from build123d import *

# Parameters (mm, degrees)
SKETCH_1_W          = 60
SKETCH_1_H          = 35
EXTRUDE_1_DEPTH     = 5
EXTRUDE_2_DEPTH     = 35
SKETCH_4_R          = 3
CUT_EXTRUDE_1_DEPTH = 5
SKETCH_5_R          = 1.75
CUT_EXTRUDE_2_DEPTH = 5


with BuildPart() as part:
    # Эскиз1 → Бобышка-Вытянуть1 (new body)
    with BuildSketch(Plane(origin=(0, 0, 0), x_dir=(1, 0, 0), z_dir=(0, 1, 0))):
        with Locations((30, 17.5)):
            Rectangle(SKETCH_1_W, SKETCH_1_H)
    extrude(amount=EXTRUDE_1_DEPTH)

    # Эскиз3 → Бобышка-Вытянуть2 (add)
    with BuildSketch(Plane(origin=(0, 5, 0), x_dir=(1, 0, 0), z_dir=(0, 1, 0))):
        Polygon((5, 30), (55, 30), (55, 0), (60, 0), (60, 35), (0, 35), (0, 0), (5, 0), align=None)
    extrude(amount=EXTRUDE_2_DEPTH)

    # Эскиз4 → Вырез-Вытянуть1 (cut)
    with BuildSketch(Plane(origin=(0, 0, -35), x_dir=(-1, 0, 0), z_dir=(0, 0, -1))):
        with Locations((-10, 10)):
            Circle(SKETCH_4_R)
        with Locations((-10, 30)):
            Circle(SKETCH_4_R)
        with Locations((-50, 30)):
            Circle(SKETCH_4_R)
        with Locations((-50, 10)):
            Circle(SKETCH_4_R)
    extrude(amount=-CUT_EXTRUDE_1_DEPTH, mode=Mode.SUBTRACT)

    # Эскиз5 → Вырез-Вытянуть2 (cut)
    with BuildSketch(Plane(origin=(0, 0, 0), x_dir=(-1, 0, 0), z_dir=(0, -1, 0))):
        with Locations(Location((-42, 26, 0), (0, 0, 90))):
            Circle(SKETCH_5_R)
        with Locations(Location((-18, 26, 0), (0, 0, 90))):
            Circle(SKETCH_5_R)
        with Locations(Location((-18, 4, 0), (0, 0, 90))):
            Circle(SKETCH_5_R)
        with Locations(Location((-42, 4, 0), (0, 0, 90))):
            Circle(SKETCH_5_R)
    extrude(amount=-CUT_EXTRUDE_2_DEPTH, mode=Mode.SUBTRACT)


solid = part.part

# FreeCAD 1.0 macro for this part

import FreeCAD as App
import Part
import Sketcher

V = App.Vector
Q = App.Units.Quantity

doc = App.newDocument("Part")
body = doc.addObject("PartDesign::Body", "Body")

# Sketch on XZ plane
sketch1 = body.newObject("Sketcher::SketchObject", "Sketch")
sketch1.AttachmentSupport = (doc.getObject("XZ_Plane"), [""])
sketch1.MapMode = "FlatFace"
sketch1.addGeometry([
    Part.LineSegment(V(0, -35, 0), V(0, 0, 0)),
    Part.LineSegment(V(0, 0, 0), V(60, 0, 0)),
    Part.LineSegment(V(60, 0, 0), V(60, -35, 0)),
    Part.LineSegment(V(60, -35, 0), V(0, -35, 0)),
], False)
sketch1.addConstraint([
    Sketcher.Constraint("Coincident", 0, 2, 1, 1),
    Sketcher.Constraint("Coincident", 1, 2, 2, 1),
    Sketcher.Constraint("Coincident", 2, 2, 3, 1),
    Sketcher.Constraint("Coincident", 3, 2, 0, 1),
    Sketcher.Constraint("Vertical", 0),
    Sketcher.Constraint("Horizontal", 1),
    Sketcher.Constraint("Vertical", 2),
    Sketcher.Constraint("Horizontal", 3),
    Sketcher.Constraint("Coincident", 0, 2, -1, 1),
    Sketcher.Constraint("DistanceX", 1, 1, 1, 2, Q("60 mm")),
    Sketcher.Constraint("DistanceY", 0, 1, 0, 2, Q("35 mm")),
])
pad1 = body.newObject("PartDesign::Pad", "Pad")
pad1.Profile = sketch1
pad1.Length = 5
pad1.Reversed = True

# Sketch on XZ plane
sketch2 = body.newObject("Sketcher::SketchObject", "Sketch001")
sketch2.AttachmentSupport = (doc.getObject("XZ_Plane"), [""])
sketch2.MapMode = "FlatFace"
sketch2.AttachmentOffset = App.Placement(V(0, 0, -5), App.Rotation())
sketch2.addGeometry([
    Part.LineSegment(V(5, -30, 0), V(55, -30, 0)),  # 0
    Part.LineSegment(V(55, -30, 0), V(55, 0, 0)),  # 1
    Part.LineSegment(V(55, 0, 0), V(60, 0, 0)),  # 2
    Part.LineSegment(V(60, 0, 0), V(60, -35, 0)),  # 3
    Part.LineSegment(V(60, -35, 0), V(0, -35, 0)),  # 4
    Part.LineSegment(V(0, -35, 0), V(0, 0, 0)),  # 5
    Part.LineSegment(V(0, 0, 0), V(5, 0, 0)),  # 6
    Part.LineSegment(V(5, 0, 0), V(5, -30, 0)),  # 7
], False)
sketch2.addConstraint([
    Sketcher.Constraint("Coincident", 0, 2, 1, 1),
    Sketcher.Constraint("Coincident", 1, 2, 2, 1),
    Sketcher.Constraint("Coincident", 2, 2, 3, 1),
    Sketcher.Constraint("Coincident", 3, 2, 4, 1),
    Sketcher.Constraint("Coincident", 4, 2, 5, 1),
    Sketcher.Constraint("Coincident", 5, 2, 6, 1),
    Sketcher.Constraint("Coincident", 6, 2, 7, 1),
    Sketcher.Constraint("Coincident", 7, 2, 0, 1),
    Sketcher.Constraint("Horizontal", 0),
    Sketcher.Constraint("Vertical", 1),
    Sketcher.Constraint("Horizontal", 2),
    Sketcher.Constraint("Vertical", 3),
    Sketcher.Constraint("Horizontal", 4),
    Sketcher.Constraint("Vertical", 5),
    Sketcher.Constraint("Horizontal", 6),
    Sketcher.Constraint("Vertical", 7),
    Sketcher.Constraint("Coincident", 5, 2, -1, 1),
    Sketcher.Constraint("PointOnObject", 1, 2, -1),
    Sketcher.Constraint("Equal", 2, 6),
    Sketcher.Constraint("DistanceX", 0, 1, 0, 2, Q("50 mm")),
    Sketcher.Constraint("DistanceX", 2, 1, 2, 2, Q("5 mm")),
    Sketcher.Constraint("DistanceY", 1, 1, 1, 2, Q("30 mm")),
    Sketcher.Constraint("DistanceY", 3, 2, 3, 1, Q("35 mm")),
])
pad2 = body.newObject("PartDesign::Pad", "Pad001")
pad2.Profile = sketch2
pad2.Length = 35
pad2.Reversed = True

# Sketch on XY plane
sketch3 = body.newObject("Sketcher::SketchObject", "Sketch002")
sketch3.AttachmentSupport = (doc.getObject("XY_Plane"), [""])
sketch3.MapMode = "FlatFace"
sketch3.AttachmentOffset = App.Placement(V(0, 0, -35), App.Rotation())
sketch3.addGeometry([
    Part.Circle(V(10, 10, 0), V(0, 0, 1), 3),
    Part.Circle(V(10, 30, 0), V(0, 0, 1), 3),
    Part.Circle(V(50, 30, 0), V(0, 0, 1), 3),
    Part.Circle(V(50, 10, 0), V(0, 0, 1), 3),
], False)
sketch3.addConstraint([
    Sketcher.Constraint("Equal", 0, 1),
    Sketcher.Constraint("Equal", 1, 2),
    Sketcher.Constraint("Equal", 2, 3),
    Sketcher.Constraint("Horizontal", 1, 3, 2, 3),
    Sketcher.Constraint("Horizontal", 0, 3, 3, 3),
    Sketcher.Constraint("Vertical", 0, 3, 1, 3),
    Sketcher.Constraint("Vertical", 2, 3, 3, 3),
    Sketcher.Constraint("Diameter", 0, Q("6 mm")),
    Sketcher.Constraint("DistanceX", -1, 1, 0, 3, Q("10 mm")),
    Sketcher.Constraint("DistanceY", -1, 1, 0, 3, Q("10 mm")),
    Sketcher.Constraint("DistanceY", -1, 1, 1, 3, Q("30 mm")),
    Sketcher.Constraint("DistanceX", -1, 1, 2, 3, Q("50 mm")),
])
pocket1 = body.newObject("PartDesign::Pocket", "Pocket")
pocket1.Profile = sketch3
pocket1.Length = 5
pocket1.Reversed = True

# Sketch on XZ plane
sketch4 = body.newObject("Sketcher::SketchObject", "Sketch003")
sketch4.AttachmentSupport = (doc.getObject("XZ_Plane"), [""])
sketch4.MapMode = "FlatFace"
sketch4.addGeometry([
    Part.Circle(V(42, -26, 0), V(0, 0, 1), 1.8),
    Part.Circle(V(18, -26, 0), V(0, 0, 1), 1.8),
    Part.Circle(V(18, -4, 0), V(0, 0, 1), 1.8),
    Part.Circle(V(42, -4, 0), V(0, 0, 1), 1.8),
], False)
sketch4.addConstraint([
    Sketcher.Constraint("Equal", 0, 1),
    Sketcher.Constraint("Equal", 1, 2),
    Sketcher.Constraint("Equal", 2, 3),
    Sketcher.Constraint("Horizontal", 0, 3, 1, 3),
    Sketcher.Constraint("Horizontal", 2, 3, 3, 3),
    Sketcher.Constraint("Vertical", 1, 3, 2, 3),
    Sketcher.Constraint("Vertical", 0, 3, 3, 3),
    Sketcher.Constraint("Diameter", 0, Q("3.5 mm")),
    Sketcher.Constraint("DistanceX", -1, 1, 0, 3, Q("42 mm")),
    Sketcher.Constraint("DistanceY", 0, 3, -1, 1, Q("26 mm")),
    Sketcher.Constraint("DistanceX", -1, 1, 1, 3, Q("18 mm")),
    Sketcher.Constraint("DistanceY", 2, 3, -1, 1, Q("4 mm")),
])
pocket2 = body.newObject("PartDesign::Pocket", "Pocket001")
pocket2.Profile = sketch4
pocket2.Length = 5

doc.recompute()
